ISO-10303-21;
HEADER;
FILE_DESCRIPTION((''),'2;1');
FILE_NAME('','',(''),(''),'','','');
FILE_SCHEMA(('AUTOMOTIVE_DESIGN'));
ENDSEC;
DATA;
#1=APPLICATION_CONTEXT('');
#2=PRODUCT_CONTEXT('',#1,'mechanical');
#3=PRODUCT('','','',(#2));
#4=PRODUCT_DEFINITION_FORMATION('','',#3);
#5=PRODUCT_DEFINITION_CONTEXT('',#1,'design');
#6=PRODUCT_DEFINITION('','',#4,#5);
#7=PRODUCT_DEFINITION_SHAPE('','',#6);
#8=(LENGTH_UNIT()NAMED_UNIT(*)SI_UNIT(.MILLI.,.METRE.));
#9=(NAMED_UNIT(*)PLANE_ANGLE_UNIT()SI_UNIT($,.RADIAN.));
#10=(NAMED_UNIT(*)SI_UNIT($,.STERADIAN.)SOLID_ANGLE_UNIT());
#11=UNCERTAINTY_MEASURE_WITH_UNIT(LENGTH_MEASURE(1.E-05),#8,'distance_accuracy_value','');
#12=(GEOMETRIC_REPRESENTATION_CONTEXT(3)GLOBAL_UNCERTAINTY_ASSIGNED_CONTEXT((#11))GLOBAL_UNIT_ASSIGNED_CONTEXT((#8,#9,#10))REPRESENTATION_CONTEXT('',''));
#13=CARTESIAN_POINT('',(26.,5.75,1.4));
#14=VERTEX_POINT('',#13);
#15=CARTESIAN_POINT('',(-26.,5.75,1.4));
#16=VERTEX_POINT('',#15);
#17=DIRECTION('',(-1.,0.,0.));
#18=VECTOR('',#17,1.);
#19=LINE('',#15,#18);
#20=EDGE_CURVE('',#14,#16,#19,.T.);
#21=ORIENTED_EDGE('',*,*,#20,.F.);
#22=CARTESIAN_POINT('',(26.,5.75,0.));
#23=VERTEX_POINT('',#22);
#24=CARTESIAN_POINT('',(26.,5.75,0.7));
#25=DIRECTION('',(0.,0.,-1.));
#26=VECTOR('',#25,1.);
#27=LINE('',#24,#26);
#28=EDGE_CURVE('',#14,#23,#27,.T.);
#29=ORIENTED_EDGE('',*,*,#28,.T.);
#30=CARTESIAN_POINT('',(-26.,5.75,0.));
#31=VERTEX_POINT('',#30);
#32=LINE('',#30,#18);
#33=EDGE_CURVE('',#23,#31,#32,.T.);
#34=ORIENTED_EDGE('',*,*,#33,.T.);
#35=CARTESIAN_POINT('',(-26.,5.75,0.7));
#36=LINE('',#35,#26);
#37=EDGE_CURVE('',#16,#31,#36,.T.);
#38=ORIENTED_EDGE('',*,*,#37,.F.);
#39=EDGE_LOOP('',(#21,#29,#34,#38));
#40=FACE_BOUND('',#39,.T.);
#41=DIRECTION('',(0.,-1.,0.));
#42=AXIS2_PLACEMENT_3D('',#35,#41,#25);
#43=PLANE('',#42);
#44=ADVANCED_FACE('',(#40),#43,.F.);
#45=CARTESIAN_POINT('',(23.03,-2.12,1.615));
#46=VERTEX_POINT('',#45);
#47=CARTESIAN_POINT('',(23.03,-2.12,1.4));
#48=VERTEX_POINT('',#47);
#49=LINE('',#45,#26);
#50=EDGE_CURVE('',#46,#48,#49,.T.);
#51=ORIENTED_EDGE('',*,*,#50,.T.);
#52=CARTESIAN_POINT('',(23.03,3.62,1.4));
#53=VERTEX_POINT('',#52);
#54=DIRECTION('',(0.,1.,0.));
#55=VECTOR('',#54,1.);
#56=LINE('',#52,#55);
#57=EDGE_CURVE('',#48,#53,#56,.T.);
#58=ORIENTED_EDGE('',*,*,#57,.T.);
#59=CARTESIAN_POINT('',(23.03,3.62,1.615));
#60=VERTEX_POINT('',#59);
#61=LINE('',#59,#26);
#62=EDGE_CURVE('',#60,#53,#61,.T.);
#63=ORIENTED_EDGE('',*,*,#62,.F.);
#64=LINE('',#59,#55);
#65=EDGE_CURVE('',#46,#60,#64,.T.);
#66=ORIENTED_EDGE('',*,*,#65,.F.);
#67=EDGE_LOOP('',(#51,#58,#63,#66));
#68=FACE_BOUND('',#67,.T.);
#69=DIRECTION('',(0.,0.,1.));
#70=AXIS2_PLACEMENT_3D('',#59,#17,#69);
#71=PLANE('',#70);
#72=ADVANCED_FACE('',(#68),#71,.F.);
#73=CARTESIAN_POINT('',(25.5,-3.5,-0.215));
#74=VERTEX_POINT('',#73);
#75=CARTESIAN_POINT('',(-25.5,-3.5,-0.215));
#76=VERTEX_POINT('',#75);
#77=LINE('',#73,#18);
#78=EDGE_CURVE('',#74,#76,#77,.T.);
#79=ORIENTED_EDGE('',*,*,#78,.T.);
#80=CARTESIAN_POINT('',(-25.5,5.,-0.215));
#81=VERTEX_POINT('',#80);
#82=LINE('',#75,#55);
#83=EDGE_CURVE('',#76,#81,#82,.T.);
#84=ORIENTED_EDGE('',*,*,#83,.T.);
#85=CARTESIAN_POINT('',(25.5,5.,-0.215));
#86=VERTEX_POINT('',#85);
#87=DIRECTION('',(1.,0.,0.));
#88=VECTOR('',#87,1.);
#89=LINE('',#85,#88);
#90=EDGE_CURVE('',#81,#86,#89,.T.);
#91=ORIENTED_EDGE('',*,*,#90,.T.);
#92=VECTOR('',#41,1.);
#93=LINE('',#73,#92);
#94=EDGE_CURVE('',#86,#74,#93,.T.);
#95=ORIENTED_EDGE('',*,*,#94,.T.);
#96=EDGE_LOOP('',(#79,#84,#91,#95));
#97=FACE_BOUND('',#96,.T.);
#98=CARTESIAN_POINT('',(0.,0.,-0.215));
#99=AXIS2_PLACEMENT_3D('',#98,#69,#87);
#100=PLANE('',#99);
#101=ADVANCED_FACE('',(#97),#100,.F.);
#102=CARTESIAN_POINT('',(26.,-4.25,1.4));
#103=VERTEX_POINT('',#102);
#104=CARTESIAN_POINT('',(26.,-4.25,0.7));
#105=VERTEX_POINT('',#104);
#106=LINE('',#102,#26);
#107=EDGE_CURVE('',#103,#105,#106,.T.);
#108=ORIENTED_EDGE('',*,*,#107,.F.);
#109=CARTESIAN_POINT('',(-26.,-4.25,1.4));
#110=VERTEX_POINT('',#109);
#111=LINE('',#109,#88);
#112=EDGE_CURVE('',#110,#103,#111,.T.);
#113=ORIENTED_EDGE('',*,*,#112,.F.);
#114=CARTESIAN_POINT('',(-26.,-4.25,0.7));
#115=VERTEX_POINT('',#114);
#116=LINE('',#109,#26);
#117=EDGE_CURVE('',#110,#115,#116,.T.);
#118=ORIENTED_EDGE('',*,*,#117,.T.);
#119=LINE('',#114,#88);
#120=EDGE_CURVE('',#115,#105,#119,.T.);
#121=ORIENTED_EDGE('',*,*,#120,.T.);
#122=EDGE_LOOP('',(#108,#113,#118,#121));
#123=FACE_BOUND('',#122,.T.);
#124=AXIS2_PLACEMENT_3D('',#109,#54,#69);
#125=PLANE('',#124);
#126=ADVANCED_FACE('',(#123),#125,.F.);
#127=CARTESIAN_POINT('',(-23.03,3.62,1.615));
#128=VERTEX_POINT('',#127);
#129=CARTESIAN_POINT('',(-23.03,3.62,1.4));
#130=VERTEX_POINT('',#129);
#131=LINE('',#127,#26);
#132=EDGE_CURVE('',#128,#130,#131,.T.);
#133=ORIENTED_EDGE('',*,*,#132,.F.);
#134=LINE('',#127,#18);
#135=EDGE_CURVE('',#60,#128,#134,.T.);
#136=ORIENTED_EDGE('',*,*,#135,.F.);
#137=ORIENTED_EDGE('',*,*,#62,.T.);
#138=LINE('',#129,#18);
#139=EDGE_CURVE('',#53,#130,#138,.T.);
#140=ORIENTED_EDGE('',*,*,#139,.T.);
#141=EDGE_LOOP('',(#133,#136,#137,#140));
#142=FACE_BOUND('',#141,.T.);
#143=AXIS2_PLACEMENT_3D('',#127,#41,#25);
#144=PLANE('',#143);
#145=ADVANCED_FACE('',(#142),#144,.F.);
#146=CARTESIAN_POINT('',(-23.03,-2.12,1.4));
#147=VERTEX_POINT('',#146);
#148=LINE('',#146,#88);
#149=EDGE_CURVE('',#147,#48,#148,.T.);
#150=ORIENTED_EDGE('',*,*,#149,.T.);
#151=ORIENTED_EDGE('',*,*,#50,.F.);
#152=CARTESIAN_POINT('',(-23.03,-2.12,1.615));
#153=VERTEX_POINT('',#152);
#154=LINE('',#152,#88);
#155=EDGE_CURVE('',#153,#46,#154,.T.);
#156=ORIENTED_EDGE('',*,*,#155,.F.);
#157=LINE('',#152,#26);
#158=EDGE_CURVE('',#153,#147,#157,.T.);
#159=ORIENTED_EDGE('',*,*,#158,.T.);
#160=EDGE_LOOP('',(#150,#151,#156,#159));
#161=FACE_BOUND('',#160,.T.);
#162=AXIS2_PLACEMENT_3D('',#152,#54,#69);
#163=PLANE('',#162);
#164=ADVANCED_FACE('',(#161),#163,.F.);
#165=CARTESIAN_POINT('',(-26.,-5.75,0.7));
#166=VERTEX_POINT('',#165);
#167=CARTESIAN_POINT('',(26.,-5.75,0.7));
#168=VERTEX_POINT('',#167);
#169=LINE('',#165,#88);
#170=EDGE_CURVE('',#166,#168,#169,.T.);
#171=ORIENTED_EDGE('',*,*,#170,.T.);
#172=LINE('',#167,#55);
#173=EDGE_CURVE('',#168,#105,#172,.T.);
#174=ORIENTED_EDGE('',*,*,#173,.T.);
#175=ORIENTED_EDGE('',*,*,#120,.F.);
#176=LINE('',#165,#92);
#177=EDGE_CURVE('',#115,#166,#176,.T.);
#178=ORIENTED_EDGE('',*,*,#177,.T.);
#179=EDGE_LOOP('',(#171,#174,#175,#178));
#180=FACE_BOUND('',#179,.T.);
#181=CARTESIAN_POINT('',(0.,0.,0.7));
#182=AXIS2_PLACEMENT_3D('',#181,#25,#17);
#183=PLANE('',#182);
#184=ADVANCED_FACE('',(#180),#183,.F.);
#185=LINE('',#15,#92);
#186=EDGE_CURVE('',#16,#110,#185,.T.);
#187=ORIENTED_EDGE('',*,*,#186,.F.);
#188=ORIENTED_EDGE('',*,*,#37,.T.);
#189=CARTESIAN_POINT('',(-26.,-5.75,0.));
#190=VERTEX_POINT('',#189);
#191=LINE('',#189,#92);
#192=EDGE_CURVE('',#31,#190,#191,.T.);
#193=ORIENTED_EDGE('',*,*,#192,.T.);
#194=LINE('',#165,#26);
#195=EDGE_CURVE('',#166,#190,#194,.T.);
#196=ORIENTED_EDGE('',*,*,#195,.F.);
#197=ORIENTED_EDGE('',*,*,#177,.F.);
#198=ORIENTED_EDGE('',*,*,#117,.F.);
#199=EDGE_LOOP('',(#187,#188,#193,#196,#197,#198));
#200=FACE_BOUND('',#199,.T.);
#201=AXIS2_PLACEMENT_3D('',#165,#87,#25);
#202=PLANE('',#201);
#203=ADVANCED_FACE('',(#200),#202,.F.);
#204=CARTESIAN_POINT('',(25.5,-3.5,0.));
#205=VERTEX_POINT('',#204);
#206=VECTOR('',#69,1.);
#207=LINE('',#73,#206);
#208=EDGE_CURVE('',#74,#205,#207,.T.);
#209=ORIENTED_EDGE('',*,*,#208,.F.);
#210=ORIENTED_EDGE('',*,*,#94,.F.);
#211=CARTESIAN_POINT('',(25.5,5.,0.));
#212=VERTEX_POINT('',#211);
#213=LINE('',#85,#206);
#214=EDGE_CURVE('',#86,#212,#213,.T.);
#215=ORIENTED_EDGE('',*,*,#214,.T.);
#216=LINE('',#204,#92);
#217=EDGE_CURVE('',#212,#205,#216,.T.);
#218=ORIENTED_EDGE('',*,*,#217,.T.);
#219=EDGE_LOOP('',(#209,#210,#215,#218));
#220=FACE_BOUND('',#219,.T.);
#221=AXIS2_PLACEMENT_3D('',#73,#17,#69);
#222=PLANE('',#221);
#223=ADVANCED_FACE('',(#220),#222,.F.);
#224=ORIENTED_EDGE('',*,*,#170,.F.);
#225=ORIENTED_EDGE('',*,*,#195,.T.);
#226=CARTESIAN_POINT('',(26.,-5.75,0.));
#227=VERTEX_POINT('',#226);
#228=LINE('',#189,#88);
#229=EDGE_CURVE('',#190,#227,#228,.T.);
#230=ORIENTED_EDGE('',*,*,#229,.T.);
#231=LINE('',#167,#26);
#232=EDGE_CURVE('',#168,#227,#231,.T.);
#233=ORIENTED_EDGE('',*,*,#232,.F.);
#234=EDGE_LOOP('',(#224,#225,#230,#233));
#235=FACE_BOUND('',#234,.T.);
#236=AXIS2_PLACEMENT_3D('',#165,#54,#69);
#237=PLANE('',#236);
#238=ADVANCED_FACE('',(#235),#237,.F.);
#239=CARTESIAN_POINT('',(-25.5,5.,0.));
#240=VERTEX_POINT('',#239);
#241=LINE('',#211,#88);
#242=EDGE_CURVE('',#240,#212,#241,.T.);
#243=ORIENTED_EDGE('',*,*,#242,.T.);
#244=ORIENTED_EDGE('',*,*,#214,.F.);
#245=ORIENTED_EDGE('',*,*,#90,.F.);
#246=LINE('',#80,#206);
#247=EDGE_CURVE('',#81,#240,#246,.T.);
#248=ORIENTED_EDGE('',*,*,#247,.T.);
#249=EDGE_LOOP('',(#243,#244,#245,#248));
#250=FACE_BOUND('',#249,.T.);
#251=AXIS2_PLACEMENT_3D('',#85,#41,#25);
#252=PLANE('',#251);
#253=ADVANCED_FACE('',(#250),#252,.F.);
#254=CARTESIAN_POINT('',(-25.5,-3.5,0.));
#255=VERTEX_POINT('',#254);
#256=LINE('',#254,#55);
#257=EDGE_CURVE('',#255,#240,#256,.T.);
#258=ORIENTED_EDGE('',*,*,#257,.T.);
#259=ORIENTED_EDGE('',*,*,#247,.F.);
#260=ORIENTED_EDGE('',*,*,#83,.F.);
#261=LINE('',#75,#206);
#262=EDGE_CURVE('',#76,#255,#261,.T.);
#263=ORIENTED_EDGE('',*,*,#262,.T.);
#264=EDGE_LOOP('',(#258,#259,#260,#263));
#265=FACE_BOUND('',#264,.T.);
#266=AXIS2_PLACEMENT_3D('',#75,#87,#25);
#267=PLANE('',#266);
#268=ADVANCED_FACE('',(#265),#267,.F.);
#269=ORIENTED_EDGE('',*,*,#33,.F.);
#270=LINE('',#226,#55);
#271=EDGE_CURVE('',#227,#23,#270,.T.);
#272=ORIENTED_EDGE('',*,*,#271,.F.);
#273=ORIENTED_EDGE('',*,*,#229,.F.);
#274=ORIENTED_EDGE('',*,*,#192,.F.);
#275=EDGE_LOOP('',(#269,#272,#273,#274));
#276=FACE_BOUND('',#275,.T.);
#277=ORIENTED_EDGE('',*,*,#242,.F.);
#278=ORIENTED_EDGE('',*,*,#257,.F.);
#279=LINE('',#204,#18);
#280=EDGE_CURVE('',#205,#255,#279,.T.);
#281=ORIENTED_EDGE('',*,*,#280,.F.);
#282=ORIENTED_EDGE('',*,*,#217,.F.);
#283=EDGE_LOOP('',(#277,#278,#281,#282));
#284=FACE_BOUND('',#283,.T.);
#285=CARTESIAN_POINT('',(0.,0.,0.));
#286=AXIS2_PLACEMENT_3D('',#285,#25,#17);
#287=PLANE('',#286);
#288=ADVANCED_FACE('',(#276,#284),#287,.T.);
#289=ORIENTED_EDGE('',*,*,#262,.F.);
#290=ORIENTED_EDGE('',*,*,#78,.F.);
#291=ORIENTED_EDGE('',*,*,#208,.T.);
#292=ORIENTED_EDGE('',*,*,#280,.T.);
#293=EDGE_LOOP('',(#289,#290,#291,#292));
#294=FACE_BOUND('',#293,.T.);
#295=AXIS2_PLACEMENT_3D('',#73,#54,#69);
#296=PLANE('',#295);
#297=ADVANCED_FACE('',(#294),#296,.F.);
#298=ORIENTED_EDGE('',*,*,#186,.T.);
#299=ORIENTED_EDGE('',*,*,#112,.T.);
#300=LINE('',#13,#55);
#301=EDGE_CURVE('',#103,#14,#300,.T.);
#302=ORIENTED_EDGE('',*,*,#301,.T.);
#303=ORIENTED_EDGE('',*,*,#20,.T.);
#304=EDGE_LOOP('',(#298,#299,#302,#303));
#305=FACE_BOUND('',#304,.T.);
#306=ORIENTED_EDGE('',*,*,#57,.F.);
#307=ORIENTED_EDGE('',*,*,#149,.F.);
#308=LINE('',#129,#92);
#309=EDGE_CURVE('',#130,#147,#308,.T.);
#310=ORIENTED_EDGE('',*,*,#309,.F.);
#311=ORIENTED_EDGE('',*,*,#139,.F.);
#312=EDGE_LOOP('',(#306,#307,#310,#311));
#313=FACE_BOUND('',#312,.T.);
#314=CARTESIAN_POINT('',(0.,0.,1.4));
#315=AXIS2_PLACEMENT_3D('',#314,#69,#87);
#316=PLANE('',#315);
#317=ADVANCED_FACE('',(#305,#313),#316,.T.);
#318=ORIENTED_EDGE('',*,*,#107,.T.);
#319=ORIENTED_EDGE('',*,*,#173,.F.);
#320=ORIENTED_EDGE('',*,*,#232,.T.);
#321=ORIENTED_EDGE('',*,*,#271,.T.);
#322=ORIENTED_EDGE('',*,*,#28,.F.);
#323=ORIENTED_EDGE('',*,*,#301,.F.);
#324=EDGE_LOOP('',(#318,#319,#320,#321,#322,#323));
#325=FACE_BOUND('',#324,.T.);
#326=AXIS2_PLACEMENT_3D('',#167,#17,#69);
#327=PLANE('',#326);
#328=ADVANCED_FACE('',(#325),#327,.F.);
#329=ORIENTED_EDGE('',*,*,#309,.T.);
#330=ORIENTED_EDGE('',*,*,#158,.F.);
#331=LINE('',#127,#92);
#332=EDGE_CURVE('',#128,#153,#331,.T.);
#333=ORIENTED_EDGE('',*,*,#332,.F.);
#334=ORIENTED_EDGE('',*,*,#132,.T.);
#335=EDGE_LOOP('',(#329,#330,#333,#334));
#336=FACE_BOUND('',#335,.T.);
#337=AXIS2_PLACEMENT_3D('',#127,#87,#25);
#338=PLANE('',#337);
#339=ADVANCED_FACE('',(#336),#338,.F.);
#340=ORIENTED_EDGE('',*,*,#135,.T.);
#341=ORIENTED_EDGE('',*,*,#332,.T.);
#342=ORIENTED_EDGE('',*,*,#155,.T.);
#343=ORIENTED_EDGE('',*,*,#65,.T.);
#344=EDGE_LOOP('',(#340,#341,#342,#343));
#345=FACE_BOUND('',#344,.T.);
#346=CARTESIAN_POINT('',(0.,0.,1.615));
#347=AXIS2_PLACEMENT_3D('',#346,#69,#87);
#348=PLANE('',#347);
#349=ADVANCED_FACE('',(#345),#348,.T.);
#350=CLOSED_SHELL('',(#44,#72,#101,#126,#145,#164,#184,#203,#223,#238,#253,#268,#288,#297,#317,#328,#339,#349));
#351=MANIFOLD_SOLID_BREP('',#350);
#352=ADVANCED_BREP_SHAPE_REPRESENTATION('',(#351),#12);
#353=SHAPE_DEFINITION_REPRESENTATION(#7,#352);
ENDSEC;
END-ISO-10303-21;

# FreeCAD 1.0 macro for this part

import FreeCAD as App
import Part
import Sketcher
Q = App.Units.Quantity

doc = App.newDocument("Part")
params = doc.addObject("Spreadsheet::Sheet", "Params")
for row, (alias, value) in enumerate([
    ("sketch1_width", "52 mm"),
    ("sketch1_height", "11.5 mm"),
    ("pad1_length", "0.7 mm"),
    ("sketch2_width", "52 mm"),
    ("sketch2_height", "10 mm"),
    ("pad2_length", "0.7 mm"),
    ("sketch3_width", "46.06 mm"),
    ("sketch3_height", "5.74 mm"),
    ("pad3_length", "0.215 mm"),
    ("sketch4_width", "51 mm"),
    ("sketch4_height", "8.5 mm"),
    ("pad4_length", "0.215 mm"),
], start=1):
    params.set(f"A{row}", alias)
    params.set(f"B{row}", "=" + value)
    params.setAlias(f"B{row}", alias)

body = doc.addObject("PartDesign::Body", "Body")

sketch1 = body.newObject("Sketcher::SketchObject", "Sketch")
sketch1.AttachmentSupport = (doc.getObject("XY_Plane"), [""])
sketch1.MapMode = "FlatFace"
sketch1.addGeometry(Part.LineSegment(App.Vector(-26, 5.75, 0), App.Vector(-26, -5.75, 0)), False)
sketch1.addGeometry(Part.LineSegment(App.Vector(-26, -5.75, 0), App.Vector(26, -5.75, 0)), False)
sketch1.addGeometry(Part.LineSegment(App.Vector(26, -5.75, 0), App.Vector(26, 5.75, 0)), False)
sketch1.addGeometry(Part.LineSegment(App.Vector(26, 5.75, 0), App.Vector(-26, 5.75, 0)), False)
sketch1.addConstraint(Sketcher.Constraint("Coincident", 0, 2, 1, 1))
sketch1.addConstraint(Sketcher.Constraint("Coincident", 1, 2, 2, 1))
sketch1.addConstraint(Sketcher.Constraint("Coincident", 2, 2, 3, 1))
sketch1.addConstraint(Sketcher.Constraint("Coincident", 3, 2, 0, 1))
sketch1.addConstraint(Sketcher.Constraint("Vertical", 0))
sketch1.addConstraint(Sketcher.Constraint("Horizontal", 1))
sketch1.addConstraint(Sketcher.Constraint("Vertical", 2))
sketch1.addConstraint(Sketcher.Constraint("Horizontal", 3))
sketch1.addConstraint(Sketcher.Constraint("Symmetric", 0, 2, 2, 2, -1, 1))
sketch1.addConstraint(Sketcher.Constraint("DistanceX", 1, 1, 1, 2, Q("52 mm")))
sketch1.addConstraint(Sketcher.Constraint("DistanceY", 0, 2, 0, 1, Q("11.5 mm")))
sketch1.setExpression("Constraints[9]", "Params.sketch1_width")
sketch1.setExpression("Constraints[10]", "Params.sketch1_height")
pad1 = body.newObject("PartDesign::Pad", "Pad")
pad1.Profile = sketch1
pad1.setExpression("Length", "Params.pad1_length")

sketch2 = body.newObject("Sketcher::SketchObject", "Sketch001")
sketch2.AttachmentSupport = (doc.getObject("XY_Plane"), [""])
sketch2.MapMode = "FlatFace"
sketch2.AttachmentOffset = App.Placement(App.Vector(0, 0, 0.7), App.Rotation())
sketch2.addGeometry(Part.LineSegment(App.Vector(-26, 5.75, 0), App.Vector(-26, -4.25, 0)), False)
sketch2.addGeometry(Part.LineSegment(App.Vector(-26, -4.25, 0), App.Vector(26, -4.25, 0)), False)
sketch2.addGeometry(Part.LineSegment(App.Vector(26, -4.25, 0), App.Vector(26, 5.75, 0)), False)
sketch2.addGeometry(Part.LineSegment(App.Vector(26, 5.75, 0), App.Vector(-26, 5.75, 0)), False)
sketch2.addConstraint(Sketcher.Constraint("Coincident", 0, 2, 1, 1))
sketch2.addConstraint(Sketcher.Constraint("Coincident", 1, 2, 2, 1))
sketch2.addConstraint(Sketcher.Constraint("Coincident", 2, 2, 3, 1))
sketch2.addConstraint(Sketcher.Constraint("Coincident", 3, 2, 0, 1))
sketch2.addConstraint(Sketcher.Constraint("Vertical", 0))
sketch2.addConstraint(Sketcher.Constraint("Horizontal", 1))
sketch2.addConstraint(Sketcher.Constraint("Vertical", 2))
sketch2.addConstraint(Sketcher.Constraint("Horizontal", 3))
sketch2.addConstraint(Sketcher.Constraint("DistanceX", 1, 1, 1, 2, Q("52 mm")))
sketch2.addConstraint(Sketcher.Constraint("DistanceY", 0, 2, 0, 1, Q("10 mm")))
sketch2.addConstraint(Sketcher.Constraint("DistanceX", 0, 2, -1, 1, Q("26 mm")))
sketch2.addConstraint(Sketcher.Constraint("DistanceY", 0, 2, -1, 1, Q("4.25 mm")))
sketch2.setExpression("Constraints[8]", "Params.sketch2_width")
sketch2.setExpression("Constraints[9]", "Params.sketch2_height")
pad2 = body.newObject("PartDesign::Pad", "Pad001")
pad2.Profile = sketch2
pad2.setExpression("Length", "Params.pad2_length")

sketch3 = body.newObject("Sketcher::SketchObject", "Sketch002")
sketch3.AttachmentSupport = (doc.getObject("XY_Plane"), [""])
sketch3.MapMode = "FlatFace"
sketch3.AttachmentOffset = App.Placement(App.Vector(0, 0, 1.4), App.Rotation())
sketch3.addGeometry(Part.LineSegment(App.Vector(-23.03, 3.62, 0), App.Vector(-23.03, -2.12, 0)), False)
sketch3.addGeometry(Part.LineSegment(App.Vector(-23.03, -2.12, 0), App.Vector(23.03, -2.12, 0)), False)
sketch3.addGeometry(Part.LineSegment(App.Vector(23.03, -2.12, 0), App.Vector(23.03, 3.62, 0)), False)
sketch3.addGeometry(Part.LineSegment(App.Vector(23.03, 3.62, 0), App.Vector(-23.03, 3.62, 0)), False)
sketch3.addConstraint(Sketcher.Constraint("Coincident", 0, 2, 1, 1))
sketch3.addConstraint(Sketcher.Constraint("Coincident", 1, 2, 2, 1))
sketch3.addConstraint(Sketcher.Constraint("Coincident", 2, 2, 3, 1))
sketch3.addConstraint(Sketcher.Constraint("Coincident", 3, 2, 0, 1))
sketch3.addConstraint(Sketcher.Constraint("Vertical", 0))
sketch3.addConstraint(Sketcher.Constraint("Horizontal", 1))
sketch3.addConstraint(Sketcher.Constraint("Vertical", 2))
sketch3.addConstraint(Sketcher.Constraint("Horizontal", 3))
sketch3.addConstraint(Sketcher.Constraint("DistanceX", 1, 1, 1, 2, Q("46.06 mm")))
sketch3.addConstraint(Sketcher.Constraint("DistanceY", 0, 2, 0, 1, Q("5.74 mm")))
sketch3.addConstraint(Sketcher.Constraint("DistanceX", 0, 2, -1, 1, Q("23.03 mm")))
sketch3.addConstraint(Sketcher.Constraint("DistanceY", 0, 2, -1, 1, Q("2.12 mm")))
sketch3.setExpression("Constraints[8]", "Params.sketch3_width")
sketch3.setExpression("Constraints[9]", "Params.sketch3_height")
pad3 = body.newObject("PartDesign::Pad", "Pad002")
pad3.Profile = sketch3
pad3.setExpression("Length", "Params.pad3_length")

sketch4 = body.newObject("Sketcher::SketchObject", "Sketch003")
sketch4.AttachmentSupport = (doc.getObject("XY_Plane"), [""])
sketch4.MapMode = "FlatFace"
sketch4.addGeometry(Part.LineSegment(App.Vector(25.5, 5, 0), App.Vector(25.5, -3.5, 0)), False)
sketch4.addGeometry(Part.LineSegment(App.Vector(25.5, -3.5, 0), App.Vector(-25.5, -3.5, 0)), False)
sketch4.addGeometry(Part.LineSegment(App.Vector(-25.5, -3.5, 0), App.Vector(-25.5, 5, 0)), False)
sketch4.addGeometry(Part.LineSegment(App.Vector(-25.5, 5, 0), App.Vector(25.5, 5, 0)), False)
sketch4.addConstraint(Sketcher.Constraint("Coincident", 0, 2, 1, 1))
sketch4.addConstraint(Sketcher.Constraint("Coincident", 1, 2, 2, 1))
sketch4.addConstraint(Sketcher.Constraint("Coincident", 2, 2, 3, 1))
sketch4.addConstraint(Sketcher.Constraint("Coincident", 3, 2, 0, 1))
sketch4.addConstraint(Sketcher.Constraint("Vertical", 0))
sketch4.addConstraint(Sketcher.Constraint("Horizontal", 1))
sketch4.addConstraint(Sketcher.Constraint("Vertical", 2))
sketch4.addConstraint(Sketcher.Constraint("Horizontal", 3))
sketch4.addConstraint(Sketcher.Constraint("DistanceX", 1, 2, 1, 1, Q("51 mm")))
sketch4.addConstraint(Sketcher.Constraint("DistanceY", 0, 2, 0, 1, Q("8.5 mm")))
sketch4.addConstraint(Sketcher.Constraint("DistanceY", -1, 1, 2, 2, Q("5 mm")))
sketch4.addConstraint(Sketcher.Constraint("DistanceX", -1, 1, 0, 2, Q("25.5 mm")))
sketch4.setExpression("Constraints[8]", "Params.sketch4_width")
sketch4.setExpression("Constraints[9]", "Params.sketch4_height")
pad4 = body.newObject("PartDesign::Pad", "Pad003")
pad4.Profile = sketch4
pad4.setExpression("Length", "Params.pad4_length")
pad4.Reversed = True

doc.recompute()
